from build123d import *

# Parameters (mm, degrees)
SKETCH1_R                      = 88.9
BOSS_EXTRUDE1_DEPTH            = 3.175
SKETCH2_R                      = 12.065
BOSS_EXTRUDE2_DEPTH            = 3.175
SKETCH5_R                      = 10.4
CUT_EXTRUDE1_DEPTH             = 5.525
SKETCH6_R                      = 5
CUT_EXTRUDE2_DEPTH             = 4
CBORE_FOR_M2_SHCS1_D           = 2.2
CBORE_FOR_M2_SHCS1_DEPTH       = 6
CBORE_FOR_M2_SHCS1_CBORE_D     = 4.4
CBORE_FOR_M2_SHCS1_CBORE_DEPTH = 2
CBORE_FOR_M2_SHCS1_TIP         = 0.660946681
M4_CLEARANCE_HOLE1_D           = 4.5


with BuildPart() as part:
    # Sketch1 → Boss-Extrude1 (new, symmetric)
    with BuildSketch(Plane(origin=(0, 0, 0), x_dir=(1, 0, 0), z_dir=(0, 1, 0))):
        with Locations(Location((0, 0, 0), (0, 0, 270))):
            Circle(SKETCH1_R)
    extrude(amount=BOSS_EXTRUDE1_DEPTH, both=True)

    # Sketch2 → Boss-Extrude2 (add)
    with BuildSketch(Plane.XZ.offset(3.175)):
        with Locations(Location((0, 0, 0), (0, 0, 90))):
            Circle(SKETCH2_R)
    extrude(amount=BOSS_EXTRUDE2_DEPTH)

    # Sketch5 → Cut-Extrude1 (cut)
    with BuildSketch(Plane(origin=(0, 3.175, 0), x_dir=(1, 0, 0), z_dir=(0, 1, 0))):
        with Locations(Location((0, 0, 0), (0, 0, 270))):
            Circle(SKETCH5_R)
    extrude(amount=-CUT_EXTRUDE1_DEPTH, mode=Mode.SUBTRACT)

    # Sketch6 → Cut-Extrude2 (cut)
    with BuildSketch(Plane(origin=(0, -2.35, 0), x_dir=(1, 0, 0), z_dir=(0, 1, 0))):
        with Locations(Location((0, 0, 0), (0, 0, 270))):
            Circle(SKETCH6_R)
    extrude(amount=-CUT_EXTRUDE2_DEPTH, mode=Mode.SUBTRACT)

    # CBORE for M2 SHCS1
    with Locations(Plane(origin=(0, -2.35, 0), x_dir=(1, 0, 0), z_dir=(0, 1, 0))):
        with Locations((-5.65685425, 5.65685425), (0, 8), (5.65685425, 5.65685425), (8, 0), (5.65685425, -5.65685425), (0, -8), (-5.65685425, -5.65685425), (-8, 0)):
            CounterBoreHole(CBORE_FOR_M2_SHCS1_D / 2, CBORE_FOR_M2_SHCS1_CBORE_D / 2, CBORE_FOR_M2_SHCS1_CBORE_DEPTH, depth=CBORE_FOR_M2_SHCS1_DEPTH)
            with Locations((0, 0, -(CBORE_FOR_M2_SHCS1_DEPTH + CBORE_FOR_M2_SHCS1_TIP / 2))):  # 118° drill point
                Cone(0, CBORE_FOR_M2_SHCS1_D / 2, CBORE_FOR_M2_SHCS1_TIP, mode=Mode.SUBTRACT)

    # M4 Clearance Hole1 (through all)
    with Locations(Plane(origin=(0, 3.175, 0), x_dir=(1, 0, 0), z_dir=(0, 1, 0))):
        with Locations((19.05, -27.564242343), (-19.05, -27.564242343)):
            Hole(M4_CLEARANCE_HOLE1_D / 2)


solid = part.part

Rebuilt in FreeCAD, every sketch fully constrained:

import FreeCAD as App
import Part
import Sketcher

V = App.Vector
Q = App.Units.Quantity

doc = App.newDocument("Part")
body = doc.addObject("PartDesign::Body", "Body")

sketch1 = body.newObject("Sketcher::SketchObject", "Sketch")
sketch1.AttachmentSupport = (doc.getObject("XZ_Plane"), [""])
sketch1.MapMode = "FlatFace"
sketch1.addGeometry(Part.Circle(V(0, 0, 0), V(0, 0, 1), 89), False)
sketch1.addConstraint(Sketcher.Constraint("Coincident", 0, 3, -1, 1))
sketch1.addConstraint(Sketcher.Constraint("Diameter", 0, Q("177.8 mm")))
pad1 = body.newObject("PartDesign::Pad", "Pad")
pad1.Profile = sketch1
pad1.Length = 6.35
pad1.Midplane = True

sketch2 = body.newObject("Sketcher::SketchObject", "Sketch001")
sketch2.AttachmentSupport = (doc.getObject("XZ_Plane"), [""])
sketch2.MapMode = "FlatFace"
sketch2.AttachmentOffset = App.Placement(V(0, 0, 3.175), App.Rotation())
sketch2.addGeometry(Part.Circle(V(0, 0, 0), V(0, 0, 1), 12), False)
sketch2.addConstraint(Sketcher.Constraint("Coincident", 0, 3, -1, 1))
sketch2.addConstraint(Sketcher.Constraint("Diameter", 0, Q("24.13 mm")))
pad2 = body.newObject("PartDesign::Pad", "Pad001")
pad2.Profile = sketch2
pad2.Length = 3.175

sketch3 = body.newObject("Sketcher::SketchObject", "Sketch002")
sketch3.AttachmentSupport = (doc.getObject("XZ_Plane"), [""])
sketch3.MapMode = "FlatFace"
sketch3.AttachmentOffset = App.Placement(V(0, 0, -3.175), App.Rotation())
sketch3.addGeometry(Part.Circle(V(0, 0, 0), V(0, 0, 1), 10), False)
sketch3.addConstraint(Sketcher.Constraint("Coincident", 0, 3, -1, 1))
sketch3.addConstraint(Sketcher.Constraint("Diameter", 0, Q("20.8 mm")))
pocket1 = body.newObject("PartDesign::Pocket", "Pocket")
pocket1.Profile = sketch3
pocket1.Length = 5.525
pocket1.Reversed = True

sketch4 = body.newObject("Sketcher::SketchObject", "Sketch003")
sketch4.AttachmentSupport = (doc.getObject("XZ_Plane"), [""])
sketch4.MapMode = "FlatFace"
sketch4.AttachmentOffset = App.Placement(V(0, 0, 2.35), App.Rotation())
sketch4.addGeometry(Part.Circle(V(0, 0, 0), V(0, 0, 1), 5), False)
sketch4.addConstraint(Sketcher.Constraint("Coincident", 0, 3, -1, 1))
sketch4.addConstraint(Sketcher.Constraint("Diameter", 0, Q("10 mm")))
pocket2 = body.newObject("PartDesign::Pocket", "Pocket001")
pocket2.Profile = sketch4
pocket2.Length = 4
pocket2.Reversed = True

sketch5 = body.newObject("Sketcher::SketchObject", "Sketch004")
sketch5.AttachmentSupport = (doc.getObject("XZ_Plane"), [""])
sketch5.MapMode = "FlatFace"
sketch5.AttachmentOffset = App.Placement(V(0, 0, 2.35), App.Rotation())
sketch5.addGeometry(Part.Circle(V(-5.7, -5.7, 0), V(0, 0, 1), 1.1), False)
sketch5.addGeometry(Part.Circle(V(0, -8, 0), V(0, 0, 1), 1.1), False)
sketch5.addGeometry(Part.Circle(V(5.7, -5.7, 0), V(0, 0, 1), 1.1), False)
sketch5.addGeometry(Part.Circle(V(8, 0, 0), V(0, 0, 1), 1.1), False)
sketch5.addGeometry(Part.Circle(V(5.7, 5.7, 0), V(0, 0, 1), 1.1), False)
sketch5.addGeometry(Part.Circle(V(0, 8, 0), V(0, 0, 1), 1.1), False)
sketch5.addGeometry(Part.Circle(V(-5.7, 5.7, 0), V(0, 0, 1), 1.1), False)
sketch5.addGeometry(Part.Circle(V(-8, 0, 0), V(0, 0, 1), 1.1), False)
sketch5.addConstraint(Sketcher.Constraint("Equal", 0, 1))
sketch5.addConstraint(Sketcher.Constraint("Equal", 1, 2))
sketch5.addConstraint(Sketcher.Constraint("Equal", 2, 3))
sketch5.addConstraint(Sketcher.Constraint("Equal", 3, 4))
sketch5.addConstraint(Sketcher.Constraint("Equal", 4, 5))
sketch5.addConstraint(Sketcher.Constraint("Equal", 5, 6))
sketch5.addConstraint(Sketcher.Constraint("Equal", 6, 7))
sketch5.addConstraint(Sketcher.Constraint("Symmetric", 0, 3, 4, 3, -1, 1))
sketch5.addConstraint(Sketcher.Constraint("Symmetric", 1, 3, 5, 3, -1, 1))
sketch5.addConstraint(Sketcher.Constraint("Symmetric", 2, 3, 6, 3, -1, 1))
sketch5.addConstraint(Sketcher.Constraint("Symmetric", 3, 3, 7, 3, -1, 1))
sketch5.addConstraint(Sketcher.Constraint("Symmetric", 0, 3, 2, 3, -2))
sketch5.addConstraint(Sketcher.Constraint("PointOnObject", 1, 3, -2))
sketch5.addConstraint(Sketcher.Constraint("PointOnObject", 3, 3, -1))
sketch5.addConstraint(Sketcher.Constraint("Diameter", 0, Q("2.2 mm")))
sketch5.addConstraint(Sketcher.Constraint("DistanceY", 1, 3, -1, 1, Q("8 mm")))
sketch5.addConstraint(Sketcher.Constraint("DistanceX", -1, 1, 3, 3, Q("8 mm")))
sketch5.addConstraint(Sketcher.Constraint("DistanceX", 0, 3, 2, 3, Q("11.313709 mm")))
sketch5.addConstraint(Sketcher.Constraint("DistanceY", 2, 3, 4, 3, Q("11.313709 mm")))
doc.recompute()
hole = body.newObject("PartDesign::Hole", "Hole")
hole.Profile = sketch5
hole.ThreadType = "None"
hole.Diameter = 2.2
hole.DepthType = "Dimension"
hole.Depth = 6
hole.DrillPoint = "Angled"
hole.DrillPointAngle = 118
hole.HoleCutType = "Counterbore"
hole.HoleCutDiameter = 4.4
hole.HoleCutDepth = 2
hole.Reversed = True

sketch6 = body.newObject("Sketcher::SketchObject", "Sketch005")
sketch6.AttachmentSupport = (doc.getObject("XZ_Plane"), [""])
sketch6.MapMode = "FlatFace"
sketch6.AttachmentOffset = App.Placement(V(0, 0, -3.175), App.Rotation())
sketch6.addGeometry(Part.Circle(V(19.1, 27.6, 0), V(0, 0, 1), 2.2), False)
sketch6.addGeometry(Part.Circle(V(-19.1, 27.6, 0), V(0, 0, 1), 2.2), False)
sketch6.addConstraint(Sketcher.Constraint("Equal", 0, 1))
sketch6.addConstraint(Sketcher.Constraint("Symmetric", 0, 3, 1, 3, -2))
sketch6.addConstraint(Sketcher.Constraint("Diameter", 0, Q("4.5 mm")))
sketch6.addConstraint(Sketcher.Constraint("DistanceX", 1, 3, 0, 3, Q("38.1 mm")))
sketch6.addConstraint(Sketcher.Constraint("DistanceY", -1, 1, 0, 3, Q("27.564242 mm")))
doc.recompute()
hole2 = body.newObject("PartDesign::Hole", "Hole001")
hole2.Profile = sketch6
hole2.ThreadType = "None"
hole2.Diameter = 4.5
hole2.DepthType = "ThroughAll"
hole2.Reversed = True

doc.recompute()
